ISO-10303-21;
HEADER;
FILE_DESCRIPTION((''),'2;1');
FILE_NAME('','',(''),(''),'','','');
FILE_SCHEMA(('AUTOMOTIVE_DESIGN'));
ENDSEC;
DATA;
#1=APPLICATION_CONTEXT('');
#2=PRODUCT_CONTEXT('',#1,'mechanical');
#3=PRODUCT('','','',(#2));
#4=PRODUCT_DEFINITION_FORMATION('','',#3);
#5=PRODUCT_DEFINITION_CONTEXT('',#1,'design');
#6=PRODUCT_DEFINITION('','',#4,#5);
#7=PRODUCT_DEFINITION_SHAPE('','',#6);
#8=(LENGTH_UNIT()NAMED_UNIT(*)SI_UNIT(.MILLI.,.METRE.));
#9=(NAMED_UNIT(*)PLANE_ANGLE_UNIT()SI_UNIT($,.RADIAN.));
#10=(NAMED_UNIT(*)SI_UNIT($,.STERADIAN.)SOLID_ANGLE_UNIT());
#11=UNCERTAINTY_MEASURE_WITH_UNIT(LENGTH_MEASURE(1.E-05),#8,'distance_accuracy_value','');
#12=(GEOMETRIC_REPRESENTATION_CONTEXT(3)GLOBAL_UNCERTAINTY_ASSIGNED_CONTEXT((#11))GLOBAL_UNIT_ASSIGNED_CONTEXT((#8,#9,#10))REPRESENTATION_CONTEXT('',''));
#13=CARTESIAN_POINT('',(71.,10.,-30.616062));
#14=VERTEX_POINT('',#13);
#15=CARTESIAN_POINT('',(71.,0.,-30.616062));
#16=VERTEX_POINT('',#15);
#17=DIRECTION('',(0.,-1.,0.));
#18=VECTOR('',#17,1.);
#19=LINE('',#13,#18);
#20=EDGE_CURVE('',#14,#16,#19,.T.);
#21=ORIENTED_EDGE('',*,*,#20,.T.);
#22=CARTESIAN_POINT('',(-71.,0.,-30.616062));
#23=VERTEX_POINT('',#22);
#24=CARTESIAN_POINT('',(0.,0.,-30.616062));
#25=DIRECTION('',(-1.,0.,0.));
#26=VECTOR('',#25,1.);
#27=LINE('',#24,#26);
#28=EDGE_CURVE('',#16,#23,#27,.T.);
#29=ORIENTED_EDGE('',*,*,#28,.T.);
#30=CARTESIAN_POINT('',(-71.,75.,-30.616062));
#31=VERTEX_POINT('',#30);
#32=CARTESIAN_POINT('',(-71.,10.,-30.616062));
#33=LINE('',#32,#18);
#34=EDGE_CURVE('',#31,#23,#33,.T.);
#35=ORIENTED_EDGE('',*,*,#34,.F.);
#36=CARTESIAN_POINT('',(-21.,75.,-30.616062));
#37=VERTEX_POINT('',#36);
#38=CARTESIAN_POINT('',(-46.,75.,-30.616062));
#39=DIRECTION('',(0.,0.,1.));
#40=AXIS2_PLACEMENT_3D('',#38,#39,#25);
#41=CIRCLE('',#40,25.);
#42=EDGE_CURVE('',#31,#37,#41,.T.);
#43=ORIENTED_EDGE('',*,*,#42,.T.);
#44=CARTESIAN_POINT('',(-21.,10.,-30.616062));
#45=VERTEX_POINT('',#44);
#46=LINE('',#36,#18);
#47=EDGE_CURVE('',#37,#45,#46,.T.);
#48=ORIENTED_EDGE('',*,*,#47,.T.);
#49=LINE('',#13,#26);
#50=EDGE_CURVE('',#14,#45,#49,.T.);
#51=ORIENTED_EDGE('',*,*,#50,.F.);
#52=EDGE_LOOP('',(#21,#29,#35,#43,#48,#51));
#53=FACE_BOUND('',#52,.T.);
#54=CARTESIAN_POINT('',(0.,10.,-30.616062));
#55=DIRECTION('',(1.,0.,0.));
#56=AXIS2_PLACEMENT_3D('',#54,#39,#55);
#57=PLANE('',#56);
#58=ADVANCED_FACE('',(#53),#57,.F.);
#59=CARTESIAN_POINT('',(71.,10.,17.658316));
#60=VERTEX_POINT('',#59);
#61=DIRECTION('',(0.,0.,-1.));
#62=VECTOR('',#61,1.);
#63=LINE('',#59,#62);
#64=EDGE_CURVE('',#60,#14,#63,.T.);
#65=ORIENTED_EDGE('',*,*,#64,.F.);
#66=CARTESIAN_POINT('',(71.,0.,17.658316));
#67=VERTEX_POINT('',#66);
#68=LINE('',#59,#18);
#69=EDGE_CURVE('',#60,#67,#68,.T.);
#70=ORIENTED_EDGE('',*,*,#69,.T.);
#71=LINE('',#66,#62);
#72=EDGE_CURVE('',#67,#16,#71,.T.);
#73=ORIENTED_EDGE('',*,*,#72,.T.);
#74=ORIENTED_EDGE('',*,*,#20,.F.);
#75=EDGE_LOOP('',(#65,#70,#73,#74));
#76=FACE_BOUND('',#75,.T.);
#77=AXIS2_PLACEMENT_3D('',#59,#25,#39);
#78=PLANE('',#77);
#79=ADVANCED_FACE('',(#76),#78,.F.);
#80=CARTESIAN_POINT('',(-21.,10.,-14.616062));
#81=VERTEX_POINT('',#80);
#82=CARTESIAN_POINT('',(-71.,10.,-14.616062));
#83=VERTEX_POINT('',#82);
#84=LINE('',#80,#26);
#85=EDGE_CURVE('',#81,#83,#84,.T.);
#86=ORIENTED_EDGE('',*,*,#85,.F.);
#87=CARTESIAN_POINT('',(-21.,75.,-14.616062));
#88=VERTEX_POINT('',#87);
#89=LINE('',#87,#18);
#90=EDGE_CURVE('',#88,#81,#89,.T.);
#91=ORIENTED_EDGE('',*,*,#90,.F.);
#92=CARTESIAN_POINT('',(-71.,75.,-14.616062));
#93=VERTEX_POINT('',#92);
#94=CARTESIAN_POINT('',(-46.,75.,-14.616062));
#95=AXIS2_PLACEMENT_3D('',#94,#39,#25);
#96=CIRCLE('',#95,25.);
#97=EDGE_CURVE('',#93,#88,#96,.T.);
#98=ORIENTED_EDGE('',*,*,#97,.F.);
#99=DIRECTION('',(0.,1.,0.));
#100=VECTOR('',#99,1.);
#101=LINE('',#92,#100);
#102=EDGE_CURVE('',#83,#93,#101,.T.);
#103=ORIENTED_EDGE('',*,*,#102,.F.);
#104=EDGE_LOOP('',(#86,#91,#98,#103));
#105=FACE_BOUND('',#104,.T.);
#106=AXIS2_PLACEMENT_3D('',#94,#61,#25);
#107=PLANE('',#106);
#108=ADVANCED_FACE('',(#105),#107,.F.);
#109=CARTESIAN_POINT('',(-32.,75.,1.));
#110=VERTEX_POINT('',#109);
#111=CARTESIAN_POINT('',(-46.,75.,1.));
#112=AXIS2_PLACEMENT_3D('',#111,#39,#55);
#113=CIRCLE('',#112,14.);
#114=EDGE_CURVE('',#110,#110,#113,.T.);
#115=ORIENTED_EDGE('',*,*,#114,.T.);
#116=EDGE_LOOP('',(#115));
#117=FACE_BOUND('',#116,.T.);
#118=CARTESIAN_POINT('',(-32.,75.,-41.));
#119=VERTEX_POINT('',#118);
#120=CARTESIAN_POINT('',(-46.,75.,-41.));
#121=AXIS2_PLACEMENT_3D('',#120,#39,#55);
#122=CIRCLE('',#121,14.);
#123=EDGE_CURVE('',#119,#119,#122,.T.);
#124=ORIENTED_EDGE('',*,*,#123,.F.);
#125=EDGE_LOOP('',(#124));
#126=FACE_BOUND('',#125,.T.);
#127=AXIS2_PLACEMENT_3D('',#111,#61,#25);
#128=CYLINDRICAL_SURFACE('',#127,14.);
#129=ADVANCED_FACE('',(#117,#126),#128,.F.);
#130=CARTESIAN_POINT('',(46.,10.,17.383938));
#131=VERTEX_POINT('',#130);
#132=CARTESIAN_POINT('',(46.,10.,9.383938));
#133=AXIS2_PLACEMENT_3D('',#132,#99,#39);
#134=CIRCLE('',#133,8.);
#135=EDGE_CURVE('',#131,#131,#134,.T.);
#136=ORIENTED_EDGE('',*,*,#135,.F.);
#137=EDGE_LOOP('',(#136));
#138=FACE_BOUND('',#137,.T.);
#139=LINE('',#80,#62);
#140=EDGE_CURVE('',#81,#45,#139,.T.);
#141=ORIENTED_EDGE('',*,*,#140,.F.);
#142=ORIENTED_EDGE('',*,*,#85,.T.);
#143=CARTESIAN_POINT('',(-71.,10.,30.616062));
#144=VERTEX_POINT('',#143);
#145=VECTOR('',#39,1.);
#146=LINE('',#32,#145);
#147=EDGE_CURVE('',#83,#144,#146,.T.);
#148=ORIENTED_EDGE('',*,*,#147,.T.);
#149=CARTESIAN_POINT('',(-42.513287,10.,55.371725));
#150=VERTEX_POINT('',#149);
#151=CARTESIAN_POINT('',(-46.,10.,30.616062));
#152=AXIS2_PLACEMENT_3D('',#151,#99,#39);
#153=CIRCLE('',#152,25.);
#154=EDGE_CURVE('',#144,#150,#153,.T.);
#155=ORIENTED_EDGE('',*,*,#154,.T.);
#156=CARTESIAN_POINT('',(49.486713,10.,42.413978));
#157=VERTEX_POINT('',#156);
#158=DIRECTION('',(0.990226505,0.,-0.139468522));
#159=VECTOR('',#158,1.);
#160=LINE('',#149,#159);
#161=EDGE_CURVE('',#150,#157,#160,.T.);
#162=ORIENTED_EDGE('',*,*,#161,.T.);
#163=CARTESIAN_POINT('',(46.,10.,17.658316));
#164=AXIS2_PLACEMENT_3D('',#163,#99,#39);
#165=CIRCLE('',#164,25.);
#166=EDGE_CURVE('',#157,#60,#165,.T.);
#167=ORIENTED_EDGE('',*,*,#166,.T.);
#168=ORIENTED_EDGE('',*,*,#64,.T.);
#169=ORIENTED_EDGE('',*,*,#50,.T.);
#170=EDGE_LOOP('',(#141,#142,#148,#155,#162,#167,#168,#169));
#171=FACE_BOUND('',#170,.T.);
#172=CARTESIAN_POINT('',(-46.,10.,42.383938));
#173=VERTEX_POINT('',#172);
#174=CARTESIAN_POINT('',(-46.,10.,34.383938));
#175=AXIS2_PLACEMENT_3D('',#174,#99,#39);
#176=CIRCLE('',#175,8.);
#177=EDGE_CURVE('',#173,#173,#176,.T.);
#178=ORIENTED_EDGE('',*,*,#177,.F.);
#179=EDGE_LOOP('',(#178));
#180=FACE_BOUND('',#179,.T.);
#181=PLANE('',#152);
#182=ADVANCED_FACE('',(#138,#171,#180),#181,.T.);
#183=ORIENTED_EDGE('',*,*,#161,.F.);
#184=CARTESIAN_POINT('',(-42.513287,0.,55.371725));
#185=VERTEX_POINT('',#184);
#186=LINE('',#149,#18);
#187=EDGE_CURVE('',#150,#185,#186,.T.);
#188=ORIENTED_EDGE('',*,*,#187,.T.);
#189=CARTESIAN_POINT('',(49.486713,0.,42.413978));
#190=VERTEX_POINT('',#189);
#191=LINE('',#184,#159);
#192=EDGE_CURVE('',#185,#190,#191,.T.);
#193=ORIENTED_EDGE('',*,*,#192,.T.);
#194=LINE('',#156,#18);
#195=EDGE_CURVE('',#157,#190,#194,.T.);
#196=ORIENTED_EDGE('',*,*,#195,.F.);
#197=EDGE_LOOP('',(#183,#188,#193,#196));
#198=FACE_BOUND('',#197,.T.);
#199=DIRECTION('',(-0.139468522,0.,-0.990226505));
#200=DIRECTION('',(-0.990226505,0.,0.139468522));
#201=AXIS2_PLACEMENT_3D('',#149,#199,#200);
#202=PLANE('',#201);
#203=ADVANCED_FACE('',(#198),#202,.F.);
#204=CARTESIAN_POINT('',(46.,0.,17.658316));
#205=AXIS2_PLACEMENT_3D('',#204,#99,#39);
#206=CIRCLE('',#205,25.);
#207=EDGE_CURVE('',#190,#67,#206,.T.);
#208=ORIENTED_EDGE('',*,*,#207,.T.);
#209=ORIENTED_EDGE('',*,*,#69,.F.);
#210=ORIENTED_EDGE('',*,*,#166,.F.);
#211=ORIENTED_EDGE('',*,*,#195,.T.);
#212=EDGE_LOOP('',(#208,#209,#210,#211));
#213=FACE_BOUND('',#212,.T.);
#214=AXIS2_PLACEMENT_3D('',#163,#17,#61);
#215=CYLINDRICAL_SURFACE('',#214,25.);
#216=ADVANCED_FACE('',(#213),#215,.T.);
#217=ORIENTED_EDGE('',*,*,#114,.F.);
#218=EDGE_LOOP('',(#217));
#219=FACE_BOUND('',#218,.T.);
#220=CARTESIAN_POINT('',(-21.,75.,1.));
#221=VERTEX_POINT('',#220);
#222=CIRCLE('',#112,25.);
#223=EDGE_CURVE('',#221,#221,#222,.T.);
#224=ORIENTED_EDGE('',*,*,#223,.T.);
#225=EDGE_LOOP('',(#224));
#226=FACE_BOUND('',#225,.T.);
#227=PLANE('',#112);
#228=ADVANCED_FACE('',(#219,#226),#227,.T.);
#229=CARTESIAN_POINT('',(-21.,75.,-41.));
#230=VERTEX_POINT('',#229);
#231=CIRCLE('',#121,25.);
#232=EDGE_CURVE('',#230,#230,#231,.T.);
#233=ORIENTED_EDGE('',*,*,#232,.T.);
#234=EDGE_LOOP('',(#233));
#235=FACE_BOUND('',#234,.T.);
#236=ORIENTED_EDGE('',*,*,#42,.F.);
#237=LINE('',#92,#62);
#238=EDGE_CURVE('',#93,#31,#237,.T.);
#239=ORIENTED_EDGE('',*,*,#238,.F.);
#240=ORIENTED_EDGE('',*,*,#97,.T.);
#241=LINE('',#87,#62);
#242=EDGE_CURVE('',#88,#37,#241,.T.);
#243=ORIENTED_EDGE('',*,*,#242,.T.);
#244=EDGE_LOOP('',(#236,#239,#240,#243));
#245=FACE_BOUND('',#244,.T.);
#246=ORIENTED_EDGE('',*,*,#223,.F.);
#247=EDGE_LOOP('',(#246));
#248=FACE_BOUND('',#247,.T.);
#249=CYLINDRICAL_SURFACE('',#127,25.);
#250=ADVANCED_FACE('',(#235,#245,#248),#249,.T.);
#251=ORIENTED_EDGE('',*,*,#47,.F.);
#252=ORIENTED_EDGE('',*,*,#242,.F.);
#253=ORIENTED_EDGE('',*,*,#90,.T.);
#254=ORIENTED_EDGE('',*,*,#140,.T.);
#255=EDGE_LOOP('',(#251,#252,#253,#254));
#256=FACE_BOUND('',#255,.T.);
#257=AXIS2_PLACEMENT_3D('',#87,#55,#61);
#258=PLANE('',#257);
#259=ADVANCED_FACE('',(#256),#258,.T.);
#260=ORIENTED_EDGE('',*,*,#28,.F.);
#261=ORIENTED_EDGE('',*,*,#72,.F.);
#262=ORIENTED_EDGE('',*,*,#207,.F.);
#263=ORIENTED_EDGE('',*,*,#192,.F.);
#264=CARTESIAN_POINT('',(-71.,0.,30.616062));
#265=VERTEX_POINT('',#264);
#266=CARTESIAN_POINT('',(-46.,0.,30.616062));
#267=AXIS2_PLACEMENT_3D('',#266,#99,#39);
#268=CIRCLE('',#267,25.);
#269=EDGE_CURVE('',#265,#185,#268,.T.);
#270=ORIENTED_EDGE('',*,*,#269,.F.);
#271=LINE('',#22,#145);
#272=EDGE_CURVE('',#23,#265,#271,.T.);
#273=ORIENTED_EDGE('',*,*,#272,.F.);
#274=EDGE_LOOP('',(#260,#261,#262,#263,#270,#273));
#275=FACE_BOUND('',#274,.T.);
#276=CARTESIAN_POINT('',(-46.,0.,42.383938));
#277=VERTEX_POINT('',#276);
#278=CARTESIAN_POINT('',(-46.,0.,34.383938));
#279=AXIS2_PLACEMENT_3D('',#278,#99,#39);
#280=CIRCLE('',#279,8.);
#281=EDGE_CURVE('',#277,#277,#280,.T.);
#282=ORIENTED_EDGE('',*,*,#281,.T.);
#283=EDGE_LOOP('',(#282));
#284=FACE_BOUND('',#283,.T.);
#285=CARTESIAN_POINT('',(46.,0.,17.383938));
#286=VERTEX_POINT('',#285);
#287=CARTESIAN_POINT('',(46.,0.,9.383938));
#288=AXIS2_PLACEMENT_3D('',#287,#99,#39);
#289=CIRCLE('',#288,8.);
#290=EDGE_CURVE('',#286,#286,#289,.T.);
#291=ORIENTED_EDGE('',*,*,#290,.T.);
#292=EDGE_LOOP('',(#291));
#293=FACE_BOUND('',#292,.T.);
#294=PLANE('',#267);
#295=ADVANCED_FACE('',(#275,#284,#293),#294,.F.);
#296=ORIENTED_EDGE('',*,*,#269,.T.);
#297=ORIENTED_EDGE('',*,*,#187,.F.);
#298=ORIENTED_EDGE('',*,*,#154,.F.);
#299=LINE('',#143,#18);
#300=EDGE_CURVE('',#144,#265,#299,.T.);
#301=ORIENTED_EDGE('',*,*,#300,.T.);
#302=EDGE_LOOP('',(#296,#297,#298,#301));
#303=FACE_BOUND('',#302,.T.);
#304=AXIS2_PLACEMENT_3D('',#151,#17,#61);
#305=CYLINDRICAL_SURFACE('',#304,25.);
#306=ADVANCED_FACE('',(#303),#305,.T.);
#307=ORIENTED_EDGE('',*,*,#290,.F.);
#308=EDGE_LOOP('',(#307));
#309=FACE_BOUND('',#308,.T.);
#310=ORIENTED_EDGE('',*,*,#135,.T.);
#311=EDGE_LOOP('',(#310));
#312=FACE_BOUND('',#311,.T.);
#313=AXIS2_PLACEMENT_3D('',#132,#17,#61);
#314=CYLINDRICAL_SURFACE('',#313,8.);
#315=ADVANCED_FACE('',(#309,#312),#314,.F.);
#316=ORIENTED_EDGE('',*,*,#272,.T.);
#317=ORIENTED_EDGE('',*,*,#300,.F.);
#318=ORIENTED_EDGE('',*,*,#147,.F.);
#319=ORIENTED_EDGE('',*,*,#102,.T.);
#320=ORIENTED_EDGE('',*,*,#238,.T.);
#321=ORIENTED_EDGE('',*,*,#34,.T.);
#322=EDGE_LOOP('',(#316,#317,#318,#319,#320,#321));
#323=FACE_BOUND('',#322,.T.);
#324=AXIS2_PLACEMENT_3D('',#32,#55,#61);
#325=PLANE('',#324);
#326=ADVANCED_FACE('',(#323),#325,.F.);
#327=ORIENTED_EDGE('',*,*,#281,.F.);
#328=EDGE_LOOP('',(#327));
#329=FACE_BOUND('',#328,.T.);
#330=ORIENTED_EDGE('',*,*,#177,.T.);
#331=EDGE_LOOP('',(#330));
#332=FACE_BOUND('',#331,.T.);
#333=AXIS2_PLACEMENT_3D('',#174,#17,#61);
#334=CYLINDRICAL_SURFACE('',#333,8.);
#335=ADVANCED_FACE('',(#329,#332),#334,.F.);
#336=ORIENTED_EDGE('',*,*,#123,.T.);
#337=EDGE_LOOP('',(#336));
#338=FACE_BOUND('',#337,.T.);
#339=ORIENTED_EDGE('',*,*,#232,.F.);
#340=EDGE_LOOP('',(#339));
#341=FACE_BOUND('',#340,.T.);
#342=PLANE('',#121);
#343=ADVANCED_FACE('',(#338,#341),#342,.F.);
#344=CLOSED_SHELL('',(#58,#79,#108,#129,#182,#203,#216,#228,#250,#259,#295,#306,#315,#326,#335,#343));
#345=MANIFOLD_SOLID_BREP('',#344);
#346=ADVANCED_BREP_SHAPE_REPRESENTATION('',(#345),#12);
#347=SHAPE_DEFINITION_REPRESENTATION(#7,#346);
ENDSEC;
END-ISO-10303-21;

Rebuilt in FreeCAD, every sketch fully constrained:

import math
import FreeCAD as App
import Part
import Sketcher

doc = App.newDocument("Part")
body = doc.addObject("PartDesign::Body", "Body")

sketch1 = body.newObject("Sketcher::SketchObject", "Sketch")
sketch1.AttachmentSupport = (doc.getObject("XZ_Plane"), [""])
sketch1.MapMode = "FlatFace"
sketch1.addGeometry([
    Part.LineSegment(App.Vector(-71, -31, 0), App.Vector(-71, 31, 0)),
    Part.ArcOfCircle(Part.Circle(App.Vector(-46, 31, 0), App.Vector(0, 0, 1), 25), math.radians(82), math.radians(180)),
    Part.LineSegment(App.Vector(-43, 55, 0), App.Vector(49, 42, 0)),
    Part.ArcOfCircle(Part.Circle(App.Vector(46, 18, 0), App.Vector(0, 0, 1), 25), math.radians(0), math.radians(82)),
    Part.LineSegment(App.Vector(71, 18, 0), App.Vector(71, -31, 0)),
    Part.LineSegment(App.Vector(71, -31, 0), App.Vector(-71, -31, 0)),
    Part.Circle(App.Vector(-46, 34, 0), App.Vector(0, 0, 1), 8),
    Part.Circle(App.Vector(46, 9, 0), App.Vector(0, 0, 1), 8),
], False)
sketch1.addConstraint([
    Sketcher.Constraint("Tangent", 0, 2, 1, 2),
    Sketcher.Constraint("Tangent", 1, 1, 2, 1),
    Sketcher.Constraint("Tangent", 2, 2, 3, 2),
    Sketcher.Constraint("Tangent", 3, 1, 4, 1),
    Sketcher.Constraint("Coincident", 4, 2, 5, 1),
    Sketcher.Constraint("Coincident", 5, 2, 0, 1),
    Sketcher.Constraint("Vertical", 0),
    Sketcher.Constraint("Vertical", 4),
    Sketcher.Constraint("Horizontal", 5),
    Sketcher.Constraint("Equal", 1, 3),
    Sketcher.Constraint("Equal", 6, 7),
    Sketcher.Constraint("Symmetric", 0, 2, 4, 2, -1, 1),
    Sketcher.Constraint("Vertical", 1, 3, 6, 3),
    Sketcher.Constraint("Vertical", 3, 3, 7, 3),
    Sketcher.Constraint("Diameter", 6, 16.0),
    Sketcher.Constraint("Radius", 1, 25.0),
    Sketcher.Constraint("DistanceX", 5, 2, 5, 1, 142.0),
    Sketcher.Constraint("DistanceY", 7, 3, 6, 3, 25.0),
    Sketcher.Constraint("DistanceY", 4, 2, 7, 3, 40.0),
    Sketcher.Constraint("DistanceY", 0, 1, 0, 2, 61.232124),
    Sketcher.Constraint("DistanceY", 4, 2, 4, 1, 48.274378),
])
pad1 = body.newObject("PartDesign::Pad", "Pad")
pad1.Profile = sketch1
pad1.Length = 10
pad1.Reversed = True
body2 = doc.addObject("PartDesign::Body", "Body001")

sketch2 = body2.newObject("Sketcher::SketchObject", "Sketch001")
sketch2.AttachmentSupport = (doc.getObject("XY_Plane001"), [""])
sketch2.MapMode = "FlatFace"
sketch2.addGeometry([
    Part.Circle(App.Vector(-46, 75, 0), App.Vector(0, 0, 1), 25),
    Part.Circle(App.Vector(-46, 75, 0), App.Vector(0, 0, 1), 14),
], False)
sketch2.addConstraint([
    Sketcher.Constraint("Coincident", 1, 3, 0, 3),
    Sketcher.Constraint("Diameter", 0, 50.0),
    Sketcher.Constraint("Diameter", 1, 28.0),
    Sketcher.Constraint("DistanceX", 0, 3, -1, 1, 46.0),
    Sketcher.Constraint("DistanceY", -1, 1, 0, 3, 75.0),
])
pad2 = body2.newObject("PartDesign::Pad", "Pad001")
pad2.Profile = sketch2
pad2.Type = "TwoLengths"
pad2.Length = 1
pad2.Length2 = 41
body.AllowCompound = True
doc.recompute()

boolean = body.newObject("PartDesign::Boolean", "Boolean")
boolean.Type = "Fuse"
boolean.addObjects([body2])

sketch3 = body.newObject("Sketcher::SketchObject", "Sketch002")
sketch3.AttachmentSupport = (doc.getObject("XY_Plane"), [""])
sketch3.MapMode = "FlatFace"
sketch3.AttachmentOffset = App.Placement(App.Vector(0, 0, -30.616062), App.Rotation())
sketch3.addGeometry([
    Part.LineSegment(App.Vector(-21, 10, 0), App.Vector(-71, 10, 0)),
    Part.LineSegment(App.Vector(-71, 10, 0), App.Vector(-71, 75, 0)),
    Part.ArcOfCircle(Part.Circle(App.Vector(-46, 75, 0), App.Vector(0, 0, 1), 25), math.radians(180), math.radians(360)),
    Part.LineSegment(App.Vector(-21, 75, 0), App.Vector(-21, 10, 0)),
], False)
sketch3.addConstraint([
    Sketcher.Constraint("Coincident", 0, 2, 1, 1),
    Sketcher.Constraint("Tangent", 1, 2, 2, 1),
    Sketcher.Constraint("Tangent", 2, 2, 3, 1),
    Sketcher.Constraint("Coincident", 3, 2, 0, 1),
    Sketcher.Constraint("Horizontal", 0),
    Sketcher.Constraint("Vertical", 1),
    Sketcher.Constraint("Vertical", 3),
    Sketcher.Constraint("Radius", 2, 25.0),
    Sketcher.Constraint("DistanceY", 1, 1, 1, 2, 65.0),
    Sketcher.Constraint("DistanceX", 2, 3, -1, 1, 46.0),
    Sketcher.Constraint("DistanceY", -1, 1, 2, 3, 75.0),
])
pad3 = body.newObject("PartDesign::Pad", "Pad002")
pad3.Profile = sketch3
pad3.Length = 16

doc.recompute()
